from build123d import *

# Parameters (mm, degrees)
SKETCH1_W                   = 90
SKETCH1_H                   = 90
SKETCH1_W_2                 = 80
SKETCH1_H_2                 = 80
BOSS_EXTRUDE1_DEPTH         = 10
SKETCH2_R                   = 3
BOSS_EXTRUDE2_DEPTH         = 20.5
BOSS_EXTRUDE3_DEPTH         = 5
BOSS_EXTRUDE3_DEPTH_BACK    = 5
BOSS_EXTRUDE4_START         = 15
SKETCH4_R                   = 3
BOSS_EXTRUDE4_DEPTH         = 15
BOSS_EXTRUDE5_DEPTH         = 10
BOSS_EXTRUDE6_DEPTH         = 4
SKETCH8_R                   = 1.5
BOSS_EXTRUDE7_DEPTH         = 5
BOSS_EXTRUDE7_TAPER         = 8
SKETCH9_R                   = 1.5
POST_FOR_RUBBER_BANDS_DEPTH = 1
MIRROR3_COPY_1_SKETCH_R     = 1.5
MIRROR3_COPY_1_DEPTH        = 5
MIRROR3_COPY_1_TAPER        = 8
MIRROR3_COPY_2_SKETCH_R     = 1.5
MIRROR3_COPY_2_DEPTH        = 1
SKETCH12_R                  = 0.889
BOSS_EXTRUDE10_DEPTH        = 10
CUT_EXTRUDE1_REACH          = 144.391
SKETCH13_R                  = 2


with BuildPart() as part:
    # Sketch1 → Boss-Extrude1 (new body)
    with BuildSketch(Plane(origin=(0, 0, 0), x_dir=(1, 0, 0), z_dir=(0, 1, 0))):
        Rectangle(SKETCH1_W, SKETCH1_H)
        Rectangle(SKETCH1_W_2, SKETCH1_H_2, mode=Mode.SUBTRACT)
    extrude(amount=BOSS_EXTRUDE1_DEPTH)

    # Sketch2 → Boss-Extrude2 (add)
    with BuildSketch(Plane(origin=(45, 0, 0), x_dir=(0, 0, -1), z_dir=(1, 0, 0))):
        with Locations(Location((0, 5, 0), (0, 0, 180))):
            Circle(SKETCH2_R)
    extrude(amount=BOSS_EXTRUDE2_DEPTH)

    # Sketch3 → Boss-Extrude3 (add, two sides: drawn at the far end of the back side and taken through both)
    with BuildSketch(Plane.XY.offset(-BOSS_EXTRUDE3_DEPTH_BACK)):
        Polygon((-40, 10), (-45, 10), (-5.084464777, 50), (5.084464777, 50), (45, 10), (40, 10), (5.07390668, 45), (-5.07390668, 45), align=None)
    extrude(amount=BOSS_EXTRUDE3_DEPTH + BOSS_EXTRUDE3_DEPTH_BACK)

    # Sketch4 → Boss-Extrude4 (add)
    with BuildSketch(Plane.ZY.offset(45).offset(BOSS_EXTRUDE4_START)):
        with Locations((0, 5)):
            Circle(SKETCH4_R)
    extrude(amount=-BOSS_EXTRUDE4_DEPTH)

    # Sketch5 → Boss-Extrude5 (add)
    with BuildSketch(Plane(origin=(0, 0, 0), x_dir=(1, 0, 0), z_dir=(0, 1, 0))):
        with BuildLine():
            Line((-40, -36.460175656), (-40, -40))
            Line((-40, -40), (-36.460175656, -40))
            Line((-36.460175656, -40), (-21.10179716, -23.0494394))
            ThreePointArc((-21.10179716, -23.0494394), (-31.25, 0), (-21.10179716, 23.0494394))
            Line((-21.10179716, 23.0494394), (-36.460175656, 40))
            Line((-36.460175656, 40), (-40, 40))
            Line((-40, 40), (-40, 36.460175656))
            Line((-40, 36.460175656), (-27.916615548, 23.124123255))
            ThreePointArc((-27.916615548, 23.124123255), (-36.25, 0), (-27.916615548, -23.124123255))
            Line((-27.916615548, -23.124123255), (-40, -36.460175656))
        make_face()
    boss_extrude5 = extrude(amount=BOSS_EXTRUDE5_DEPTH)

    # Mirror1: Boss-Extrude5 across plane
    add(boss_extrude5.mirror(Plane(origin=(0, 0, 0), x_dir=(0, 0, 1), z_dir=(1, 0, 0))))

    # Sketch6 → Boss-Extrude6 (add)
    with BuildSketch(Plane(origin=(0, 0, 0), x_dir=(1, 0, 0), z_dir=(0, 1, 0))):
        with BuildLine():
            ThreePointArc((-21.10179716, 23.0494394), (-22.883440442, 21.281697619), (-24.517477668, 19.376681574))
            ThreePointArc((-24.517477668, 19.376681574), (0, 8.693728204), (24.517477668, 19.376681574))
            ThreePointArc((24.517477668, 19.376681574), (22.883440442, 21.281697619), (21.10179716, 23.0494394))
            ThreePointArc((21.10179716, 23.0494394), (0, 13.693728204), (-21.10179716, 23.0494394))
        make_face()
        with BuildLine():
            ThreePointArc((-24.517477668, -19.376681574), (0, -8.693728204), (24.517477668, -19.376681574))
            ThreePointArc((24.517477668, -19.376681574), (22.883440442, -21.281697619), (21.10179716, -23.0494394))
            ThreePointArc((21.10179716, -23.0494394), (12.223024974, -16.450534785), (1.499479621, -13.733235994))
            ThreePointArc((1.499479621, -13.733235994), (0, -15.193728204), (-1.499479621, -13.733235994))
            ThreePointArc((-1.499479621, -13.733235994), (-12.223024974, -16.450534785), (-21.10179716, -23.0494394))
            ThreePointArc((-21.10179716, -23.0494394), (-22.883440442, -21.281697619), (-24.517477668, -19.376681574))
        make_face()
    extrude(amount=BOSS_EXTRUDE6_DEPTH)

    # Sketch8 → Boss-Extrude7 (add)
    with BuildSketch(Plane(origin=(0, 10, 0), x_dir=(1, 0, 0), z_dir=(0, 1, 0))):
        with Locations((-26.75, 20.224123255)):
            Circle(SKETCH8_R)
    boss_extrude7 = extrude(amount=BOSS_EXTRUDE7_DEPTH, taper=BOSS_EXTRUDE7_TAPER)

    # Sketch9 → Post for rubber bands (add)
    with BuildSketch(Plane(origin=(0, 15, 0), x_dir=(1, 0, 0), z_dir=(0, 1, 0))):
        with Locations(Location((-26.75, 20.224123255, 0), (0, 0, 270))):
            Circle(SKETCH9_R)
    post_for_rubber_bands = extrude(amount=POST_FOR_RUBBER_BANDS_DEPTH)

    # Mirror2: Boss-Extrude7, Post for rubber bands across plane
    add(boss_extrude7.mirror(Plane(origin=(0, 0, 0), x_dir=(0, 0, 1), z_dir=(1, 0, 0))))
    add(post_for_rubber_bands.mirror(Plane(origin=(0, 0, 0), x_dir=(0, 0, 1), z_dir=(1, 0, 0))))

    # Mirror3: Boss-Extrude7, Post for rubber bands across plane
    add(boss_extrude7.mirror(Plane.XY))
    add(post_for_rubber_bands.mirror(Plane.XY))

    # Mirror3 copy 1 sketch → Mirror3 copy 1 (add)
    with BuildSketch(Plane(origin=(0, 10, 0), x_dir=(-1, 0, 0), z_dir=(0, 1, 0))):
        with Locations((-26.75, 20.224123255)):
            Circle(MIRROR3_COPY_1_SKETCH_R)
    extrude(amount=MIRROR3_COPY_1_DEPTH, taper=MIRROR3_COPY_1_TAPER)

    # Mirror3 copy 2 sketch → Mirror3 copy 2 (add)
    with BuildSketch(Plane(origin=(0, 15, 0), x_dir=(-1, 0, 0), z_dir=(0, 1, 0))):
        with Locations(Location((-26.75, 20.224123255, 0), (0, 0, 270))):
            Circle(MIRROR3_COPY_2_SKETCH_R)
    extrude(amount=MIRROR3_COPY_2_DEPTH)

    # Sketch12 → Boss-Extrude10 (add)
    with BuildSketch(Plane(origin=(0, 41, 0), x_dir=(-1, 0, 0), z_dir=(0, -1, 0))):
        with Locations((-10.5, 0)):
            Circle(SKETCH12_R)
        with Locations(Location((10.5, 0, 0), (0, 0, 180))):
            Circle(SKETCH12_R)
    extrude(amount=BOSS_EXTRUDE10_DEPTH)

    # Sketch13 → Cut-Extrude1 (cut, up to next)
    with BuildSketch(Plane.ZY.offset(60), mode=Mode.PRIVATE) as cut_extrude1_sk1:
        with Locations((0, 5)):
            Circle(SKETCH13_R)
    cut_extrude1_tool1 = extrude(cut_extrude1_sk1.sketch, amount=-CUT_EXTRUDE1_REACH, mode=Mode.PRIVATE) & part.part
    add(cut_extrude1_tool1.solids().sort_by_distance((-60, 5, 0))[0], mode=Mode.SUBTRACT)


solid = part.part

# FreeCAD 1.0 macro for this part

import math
import FreeCAD as App
import Part
import Sketcher

doc = App.newDocument("Part")
body = doc.addObject("PartDesign::Body", "Body")

sketch1 = body.newObject("Sketcher::SketchObject", "Sketch")
sketch1.AttachmentSupport = (doc.getObject("XZ_Plane"), [""])
sketch1.MapMode = "FlatFace"
sketch1.addGeometry([
    Part.LineSegment(App.Vector(-45, -45, 0), App.Vector(-45, 45, 0)),
    Part.LineSegment(App.Vector(-45, 45, 0), App.Vector(45, 45, 0)),
    Part.LineSegment(App.Vector(45, 45, 0), App.Vector(45, -45, 0)),
    Part.LineSegment(App.Vector(45, -45, 0), App.Vector(-45, -45, 0)),
    Part.LineSegment(App.Vector(40, 40, 0), App.Vector(-40, 40, 0)),
    Part.LineSegment(App.Vector(-40, 40, 0), App.Vector(-40, -40, 0)),
    Part.LineSegment(App.Vector(-40, -40, 0), App.Vector(40, -40, 0)),
    Part.LineSegment(App.Vector(40, -40, 0), App.Vector(40, 40, 0)),
], False)
sketch1.addConstraint([
    Sketcher.Constraint("Coincident", 0, 2, 1, 1),
    Sketcher.Constraint("Coincident", 1, 2, 2, 1),
    Sketcher.Constraint("Coincident", 2, 2, 3, 1),
    Sketcher.Constraint("Coincident", 3, 2, 0, 1),
    Sketcher.Constraint("Coincident", 4, 2, 5, 1),
    Sketcher.Constraint("Coincident", 5, 2, 6, 1),
    Sketcher.Constraint("Coincident", 6, 2, 7, 1),
    Sketcher.Constraint("Coincident", 7, 2, 4, 1),
    Sketcher.Constraint("Vertical", 0),
    Sketcher.Constraint("Horizontal", 1),
    Sketcher.Constraint("Vertical", 2),
    Sketcher.Constraint("Horizontal", 3),
    Sketcher.Constraint("Horizontal", 4),
    Sketcher.Constraint("Vertical", 5),
    Sketcher.Constraint("Horizontal", 6),
    Sketcher.Constraint("Vertical", 7),
    Sketcher.Constraint("Symmetric", 0, 2, 2, 2, -1, 1),
    Sketcher.Constraint("Symmetric", 4, 2, 6, 2, -1, 1),
    Sketcher.Constraint("Equal", 3, 0),
    Sketcher.Constraint("Equal", 6, 5),
    Sketcher.Constraint("DistanceX", 1, 1, 1, 2, 90.0),
    Sketcher.Constraint("DistanceX", 4, 2, 4, 1, 80.0),
])
pad1 = body.newObject("PartDesign::Pad", "Pad")
pad1.Profile = sketch1
pad1.Length = 10
pad1.Reversed = True

sketch2 = body.newObject("Sketcher::SketchObject", "Sketch001")
sketch2.AttachmentSupport = (doc.getObject("YZ_Plane"), [""])
sketch2.MapMode = "FlatFace"
sketch2.AttachmentOffset = App.Placement(App.Vector(0, 0, 45), App.Rotation())
sketch2.addGeometry(Part.Circle(App.Vector(5, 0, 0), App.Vector(0, 0, 1), 3), False)
sketch2.addConstraint([
    Sketcher.Constraint("PointOnObject", 0, 3, -1),
    Sketcher.Constraint("Diameter", 0, 6.0),
    Sketcher.Constraint("DistanceX", -1, 1, 0, 3, 5.0),
])
pad2 = body.newObject("PartDesign::Pad", "Pad001")
pad2.Profile = sketch2
pad2.Length = 20.5

sketch3 = body.newObject("Sketcher::SketchObject", "Sketch002")
sketch3.AttachmentSupport = (doc.getObject("XY_Plane"), [""])
sketch3.MapMode = "FlatFace"
sketch3.addGeometry([
    Part.LineSegment(App.Vector(-45, 10, 0), App.Vector(-40, 10, 0)),
    Part.LineSegment(App.Vector(-40, 10, 0), App.Vector(-5.073907, 45, 0)),
    Part.LineSegment(App.Vector(-5.073907, 45, 0), App.Vector(5.073907, 45, 0)),
    Part.LineSegment(App.Vector(5.073907, 45, 0), App.Vector(40, 10, 0)),
    Part.LineSegment(App.Vector(40, 10, 0), App.Vector(45, 10, 0)),
    Part.LineSegment(App.Vector(45, 10, 0), App.Vector(5.084465, 50, 0)),
    Part.LineSegment(App.Vector(5.084465, 50, 0), App.Vector(-5.084465, 50, 0)),
    Part.LineSegment(App.Vector(-5.084465, 50, 0), App.Vector(-45, 10, 0)),
], False)
sketch3.addConstraint([
    Sketcher.Constraint("Coincident", 0, 2, 1, 1),
    Sketcher.Constraint("Coincident", 1, 2, 2, 1),
    Sketcher.Constraint("Coincident", 2, 2, 3, 1),
    Sketcher.Constraint("Coincident", 3, 2, 4, 1),
    Sketcher.Constraint("Coincident", 4, 2, 5, 1),
    Sketcher.Constraint("Coincident", 5, 2, 6, 1),
    Sketcher.Constraint("Coincident", 6, 2, 7, 1),
    Sketcher.Constraint("Coincident", 7, 2, 0, 1),
    Sketcher.Constraint("Horizontal", 0),
    Sketcher.Constraint("Horizontal", 2),
    Sketcher.Constraint("Horizontal", 4),
    Sketcher.Constraint("Horizontal", 6),
    Sketcher.Constraint("Symmetric", 0, 2, 3, 2, -2),
    Sketcher.Constraint("Parallel", 3, 5),
    Sketcher.Constraint("Parallel", 1, 7),
    Sketcher.Constraint("Equal", 0, 4),
    Sketcher.Constraint("Equal", 1, 3),
    Sketcher.Constraint("DistanceX", 0, 1, 0, 2, 5.0),
    Sketcher.Constraint("DistanceX", 0, 2, -1, 1, 40.0),
    Sketcher.Constraint("DistanceY", -1, 1, 0, 2, 10.0),
    Sketcher.Constraint("DistanceY", -1, 1, 1, 2, 45.0),
    Sketcher.Constraint("DistanceY", -1, 1, 5, 2, 50.0),
    Sketcher.Constraint("DistanceX", 6, 2, 6, 1, 10.16893),
])
pad3 = body.newObject("PartDesign::Pad", "Pad002")
pad3.Profile = sketch3
pad3.Type = "TwoLengths"
pad3.Length = 5
pad3.Length2 = 5

sketch4 = body.newObject("Sketcher::SketchObject", "Sketch003")
sketch4.AttachmentSupport = (doc.getObject("YZ_Plane"), [""])
sketch4.MapMode = "FlatFace"
sketch4.AttachmentOffset = App.Placement(App.Vector(0, 0, -60), App.Rotation())
sketch4.addGeometry(Part.Circle(App.Vector(5, 0, 0), App.Vector(0, 0, 1), 3), False)
sketch4.addConstraint([
    Sketcher.Constraint("PointOnObject", 0, 3, -1),
    Sketcher.Constraint("Diameter", 0, 6.0),
    Sketcher.Constraint("DistanceX", -1, 1, 0, 3, 5.0),
])
pad4 = body.newObject("PartDesign::Pad", "Pad003")
pad4.Profile = sketch4
pad4.Length = 15

sketch5 = body.newObject("Sketcher::SketchObject", "Sketch004")
sketch5.AttachmentSupport = (doc.getObject("XZ_Plane"), [""])
sketch5.MapMode = "FlatFace"
sketch5.addGeometry([
    Part.LineSegment(App.Vector(-40, 36.460176, 0), App.Vector(-40, 40, 0)),
    Part.LineSegment(App.Vector(-40, 40, 0), App.Vector(-36.460176, 40, 0)),
    Part.LineSegment(App.Vector(-36.460176, 40, 0), App.Vector(-21.101797, 23.049439, 0)),
    Part.ArcOfCircle(Part.Circle(App.Vector(0, 0, 0), App.Vector(0, 0, 1), 31.25), math.radians(132.47415), math.radians(227.52585)),
    Part.LineSegment(App.Vector(-21.101797, -23.049439, 0), App.Vector(-36.460176, -40, 0)),
    Part.LineSegment(App.Vector(-36.460176, -40, 0), App.Vector(-40, -40, 0)),
    Part.LineSegment(App.Vector(-40, -40, 0), App.Vector(-40, -36.460176, 0)),
    Part.LineSegment(App.Vector(-40, -36.460176, 0), App.Vector(-27.916616, -23.124123, 0)),
    Part.ArcOfCircle(Part.Circle(App.Vector(0, 0, 0), App.Vector(0, 0, 1), 36.25), math.radians(140.364085), math.radians(219.635915)),
    Part.LineSegment(App.Vector(-27.916616, 23.124123, 0), App.Vector(-40, 36.460176, 0)),
], False)
sketch5.addConstraint([
    Sketcher.Constraint("Coincident", 0, 2, 1, 1),
    Sketcher.Constraint("Coincident", 1, 2, 2, 1),
    Sketcher.Constraint("Coincident", 2, 2, 3, 1),
    Sketcher.Constraint("Coincident", 3, 2, 4, 1),
    Sketcher.Constraint("Coincident", 4, 2, 5, 1),
    Sketcher.Constraint("Coincident", 5, 2, 6, 1),
    Sketcher.Constraint("Coincident", 6, 2, 7, 1),
    Sketcher.Constraint("Coincident", 7, 2, 8, 2),
    Sketcher.Constraint("Coincident", 8, 1, 9, 1),
    Sketcher.Constraint("Coincident", 9, 2, 0, 1),
    Sketcher.Constraint("Vertical", 0),
    Sketcher.Constraint("Horizontal", 1),
    Sketcher.Constraint("Horizontal", 5),
    Sketcher.Constraint("Vertical", 6),
    Sketcher.Constraint("Coincident", 3, 3, -1, 1),
    Sketcher.Constraint("Coincident", 8, 3, -1, 1),
    Sketcher.Constraint("Symmetric", 1, 2, 4, 2, -1),
    Sketcher.Constraint("Symmetric", 6, 2, 9, 2, -1),
    Sketcher.Constraint("Parallel", 4, 7),
    Sketcher.Constraint("Parallel", 2, 9),
    Sketcher.Constraint("Vertical", 2, 2, 3, 2),
    Sketcher.Constraint("Equal", 5, 0),
    Sketcher.Constraint("Radius", 3, 31.25),
    Sketcher.Constraint("Radius", 8, 36.25),
    Sketcher.Constraint("DistanceX", 0, 2, -1, 1, 40.0),
    Sketcher.Constraint("DistanceY", -1, 1, 0, 2, 40.0),
    Sketcher.Constraint("Distance", 7, 17.996068),
    Sketcher.Constraint("DistanceX", 1, 1, 1, 2, 3.539824),
])
pad5 = body.newObject("PartDesign::Pad", "Pad004")
pad5.Profile = sketch5
pad5.Length = 10
pad5.Reversed = True
doc.recompute()

mirrored = body.newObject("PartDesign::Mirrored", "Mirrored")
mirrored.Originals = [pad5]
mirrored.MirrorPlane = (doc.getObject("YZ_Plane"), [""])
body.Tip = mirrored

sketch6 = body.newObject("Sketcher::SketchObject", "Sketch005")
sketch6.AttachmentSupport = (doc.getObject("XZ_Plane"), [""])
sketch6.MapMode = "FlatFace"
sketch6.addGeometry([
    Part.ArcOfCircle(Part.Circle(App.Vector(0, 0, 0), App.Vector(0, 0, 1), 31.25), math.radians(-141.679936), math.radians(-132.47415)),
    Part.ArcOfCircle(Part.Circle(App.Vector(0, -42.169125, 0), App.Vector(0, 0, 1), 33.475397), math.radians(42.911782), math.radians(137.088218)),
    Part.ArcOfCircle(Part.Circle(App.Vector(0, 0, 0), App.Vector(0, 0, 1), 31.25), math.radians(-47.52585), math.radians(-38.320064)),
    Part.ArcOfCircle(Part.Circle(App.Vector(0, -42.169125, 0), App.Vector(0, 0, 1), 28.475397), math.radians(42.178751), math.radians(137.821249)),
    Part.ArcOfCircle(Part.Circle(App.Vector(0, 42.169125, 0), App.Vector(0, 0, 1), 33.475397), math.radians(-137.088218), math.radians(-42.911782)),
    Part.ArcOfCircle(Part.Circle(App.Vector(0, 0, 0), App.Vector(0, 0, 1), 31.25), math.radians(132.47415), math.radians(141.679936)),
    Part.ArcOfCircle(Part.Circle(App.Vector(0, 42.169125, 0), App.Vector(0, 0, 1), 28.475397), math.radians(-137.821249), math.radians(-93.018522)),
    Part.ArcOfCircle(Part.Circle(App.Vector(0, 13.693728, 0), App.Vector(0, 0, 1), 1.5), math.radians(1.509261), math.radians(178.490739)),
    Part.ArcOfCircle(Part.Circle(App.Vector(0, 42.169125, 0), App.Vector(0, 0, 1), 28.475397), math.radians(-86.981478), math.radians(-42.178751)),
    Part.ArcOfCircle(Part.Circle(App.Vector(0, 0, 0), App.Vector(0, 0, 1), 31.25), math.radians(38.320064), math.radians(47.52585)),
], False)
sketch6.addConstraint([
    Sketcher.Constraint("Coincident", 0, 1, 1, 2),
    Sketcher.Constraint("Coincident", 1, 1, 2, 2),
    Sketcher.Constraint("Coincident", 2, 1, 3, 1),
    Sketcher.Constraint("Coincident", 3, 2, 0, 2),
    Sketcher.Constraint("Coincident", 4, 1, 5, 2),
    Sketcher.Constraint("Coincident", 5, 1, 6, 1),
    Sketcher.Constraint("Coincident", 6, 2, 7, 2),
    Sketcher.Constraint("Coincident", 7, 1, 8, 1),
    Sketcher.Constraint("Coincident", 8, 2, 9, 2),
    Sketcher.Constraint("Coincident", 9, 1, 4, 2),
    Sketcher.Constraint("Coincident", 0, 3, -1, 1),
    Sketcher.Constraint("Coincident", 2, 3, -1, 1),
    Sketcher.Constraint("Coincident", 5, 3, -1, 1),
    Sketcher.Constraint("Coincident", 9, 3, -1, 1),
    Sketcher.Constraint("Coincident", 3, 3, 1, 3),
    Sketcher.Constraint("Coincident", 6, 3, 4, 3),
    Sketcher.Constraint("Coincident", 8, 3, 4, 3),
    Sketcher.Constraint("Equal", 0, 2),
    Sketcher.Constraint("Equal", 1, 4),
    Sketcher.Constraint("Equal", 2, 5),
    Sketcher.Constraint("Equal", 3, 6),
    Sketcher.Constraint("Equal", 6, 8),
    Sketcher.Constraint("Equal", 5, 9),
    Sketcher.Constraint("Symmetric", 1, 3, 4, 3, -1, 1),
    Sketcher.Constraint("Symmetric", 6, 2, 7, 1, -2),
    Sketcher.Constraint("Radius", 7, 1.5),
    Sketcher.Constraint("Radius", 0, 31.25),
    Sketcher.Constraint("Radius", 1, 33.475397),
    Sketcher.Constraint("Radius", 3, 28.475397),
    Sketcher.Constraint("DistanceX", 7, 1, 9, 1, 23.017998),
    Sketcher.Constraint("DistanceY", -1, 1, 7, 3, 13.693728),
])
pad6 = body.newObject("PartDesign::Pad", "Pad005")
pad6.Profile = sketch6
pad6.Length = 4
pad6.Reversed = True

sketch7 = body.newObject("Sketcher::SketchObject", "Sketch006")
sketch7.AttachmentSupport = (doc.getObject("XZ_Plane"), [""])
sketch7.MapMode = "FlatFace"
sketch7.AttachmentOffset = App.Placement(App.Vector(0, 0, -10), App.Rotation())
sketch7.addGeometry(Part.Circle(App.Vector(-26.75, -20.224123, 0), App.Vector(0, 0, 1), 1.5), False)
sketch7.addConstraint([
    Sketcher.Constraint("Diameter", 0, 3.0),
    Sketcher.Constraint("DistanceX", 0, 3, -1, 1, 26.75),
    Sketcher.Constraint("DistanceY", 0, 3, -1, 1, 20.224123),
])
pad7 = body.newObject("PartDesign::Pad", "Pad006")
pad7.Profile = sketch7
pad7.Length = 5
pad7.Reversed = True
pad7.TaperAngle = -8

sketch8 = body.newObject("Sketcher::SketchObject", "Sketch007")
sketch8.AttachmentSupport = (doc.getObject("XZ_Plane"), [""])
sketch8.MapMode = "FlatFace"
sketch8.AttachmentOffset = App.Placement(App.Vector(0, 0, -15), App.Rotation())
sketch8.addGeometry(Part.Circle(App.Vector(-26.75, -20.224123, 0), App.Vector(0, 0, 1), 1.5), False)
sketch8.addConstraint([
    Sketcher.Constraint("Diameter", 0, 3.0),
    Sketcher.Constraint("DistanceX", 0, 3, -1, 1, 26.75),
    Sketcher.Constraint("DistanceY", 0, 3, -1, 1, 20.224123),
])
pad8 = body.newObject("PartDesign::Pad", "Pad007")
pad8.Profile = sketch8
pad8.Length = 1
pad8.Reversed = True
doc.recompute()

mirrored2 = body.newObject("PartDesign::Mirrored", "Mirrored001")
mirrored2.Originals = [pad7, pad8]
mirrored2.MirrorPlane = (doc.getObject("YZ_Plane"), [""])
body.Tip = mirrored2
doc.recompute()

mirrored3 = body.newObject("PartDesign::Mirrored", "Mirrored002")
mirrored3.Originals = [pad7, pad8]
mirrored3.MirrorPlane = (doc.getObject("XY_Plane"), [""])
body.Tip = mirrored3

sketch9 = body.newObject("Sketcher::SketchObject", "Sketch008")
sketch9.AttachmentSupport = (doc.getObject("XZ_Plane"), [""])
sketch9.MapMode = "FlatFace"
sketch9.AttachmentOffset = App.Placement(App.Vector(0, 0, -10), App.Rotation())
sketch9.addGeometry(Part.Circle(App.Vector(26.75, 20.224123, 0), App.Vector(0, 0, 1), 1.5), False)
sketch9.addConstraint([
    Sketcher.Constraint("Diameter", 0, 3.0),
    Sketcher.Constraint("DistanceX", -1, 1, 0, 3, 26.75),
    Sketcher.Constraint("DistanceY", -1, 1, 0, 3, 20.224123),
])
pad9 = body.newObject("PartDesign::Pad", "Pad008")
pad9.Profile = sketch9
pad9.Length = 5
pad9.Reversed = True
pad9.TaperAngle = -8

sketch10 = body.newObject("Sketcher::SketchObject", "Sketch009")
sketch10.AttachmentSupport = (doc.getObject("XZ_Plane"), [""])
sketch10.MapMode = "FlatFace"
sketch10.AttachmentOffset = App.Placement(App.Vector(0, 0, -15), App.Rotation())
sketch10.addGeometry(Part.Circle(App.Vector(26.75, 20.224123, 0), App.Vector(0, 0, 1), 1.5), False)
sketch10.addConstraint([
    Sketcher.Constraint("Diameter", 0, 3.0),
    Sketcher.Constraint("DistanceX", -1, 1, 0, 3, 26.75),
    Sketcher.Constraint("DistanceY", -1, 1, 0, 3, 20.224123),
])
pad10 = body.newObject("PartDesign::Pad", "Pad009")
pad10.Profile = sketch10
pad10.Length = 1
pad10.Reversed = True

sketch11 = body.newObject("Sketcher::SketchObject", "Sketch010")
sketch11.AttachmentSupport = (doc.getObject("XZ_Plane"), [""])
sketch11.MapMode = "FlatFace"
sketch11.AttachmentOffset = App.Placement(App.Vector(0, 0, -41), App.Rotation())
sketch11.addGeometry([
    Part.Circle(App.Vector(10.5, 0, 0), App.Vector(0, 0, 1), 0.889),
    Part.Circle(App.Vector(-10.5, 0, 0), App.Vector(0, 0, 1), 0.889),
], False)
sketch11.addConstraint([
    Sketcher.Constraint("Equal", 0, 1),
    Sketcher.Constraint("Symmetric", 0, 3, 1, 3, -1, 1),
    Sketcher.Constraint("PointOnObject", 0, 3, -1),
    Sketcher.Constraint("Diameter", 0, 1.778),
    Sketcher.Constraint("DistanceX", 1, 3, 0, 3, 21.0),
])
pad11 = body.newObject("PartDesign::Pad", "Pad010")
pad11.Profile = sketch11
pad11.Length = 10

sketch12 = body.newObject("Sketcher::SketchObject", "Sketch011")
sketch12.AttachmentSupport = (doc.getObject("YZ_Plane"), [""])
sketch12.MapMode = "FlatFace"
sketch12.AttachmentOffset = App.Placement(App.Vector(0, 0, -60), App.Rotation())
sketch12.addGeometry(Part.Circle(App.Vector(5, 0, 0), App.Vector(0, 0, 1), 2), False)
sketch12.addConstraint([
    Sketcher.Constraint("PointOnObject", 0, 3, -1),
    Sketcher.Constraint("Diameter", 0, 4.0),
    Sketcher.Constraint("DistanceX", -1, 1, 0, 3, 5.0),
])
pocket1 = body.newObject("PartDesign::Pocket", "Pocket")
pocket1.Profile = sketch12
pocket1.Type = "UpToFirst"
pocket1.Reversed = True

doc.recompute()
